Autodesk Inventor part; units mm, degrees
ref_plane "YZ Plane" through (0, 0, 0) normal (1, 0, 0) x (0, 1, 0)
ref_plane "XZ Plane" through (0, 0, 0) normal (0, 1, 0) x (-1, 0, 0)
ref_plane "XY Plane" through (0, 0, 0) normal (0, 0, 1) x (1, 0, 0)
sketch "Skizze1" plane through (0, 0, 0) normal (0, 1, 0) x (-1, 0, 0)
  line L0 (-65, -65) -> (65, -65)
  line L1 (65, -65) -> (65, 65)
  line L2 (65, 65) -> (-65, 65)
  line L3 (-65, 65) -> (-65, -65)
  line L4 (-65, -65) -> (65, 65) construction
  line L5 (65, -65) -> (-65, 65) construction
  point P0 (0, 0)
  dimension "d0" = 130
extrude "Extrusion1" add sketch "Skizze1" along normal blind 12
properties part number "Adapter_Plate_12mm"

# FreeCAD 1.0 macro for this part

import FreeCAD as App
import Part
import Sketcher
from FreeCAD import Vector
Q = App.Units.Quantity


def add_polygon(sketch, points):
    """Adds a closed chain of lines whose ends are joined by coincident constraints."""
    first, n = sketch.GeometryCount, len(points)
    for a, b in zip(points, points[1:] + points[:1]):
        sketch.addGeometry(Part.LineSegment(App.Vector(*a, 0), App.Vector(*b, 0)), False)
    for i in range(n):
        sketch.addConstraint(Sketcher.Constraint("Coincident", first + i, 2, first + (i + 1) % n, 1))

doc = App.newDocument("Part")
params = doc.addObject("Spreadsheet::Sheet", "Params")
for row, (alias, value) in enumerate([
    ("sketch1_width", "130 mm"),
    ("pad1_length", "12 mm"),
], start=1):
    params.set(f"A{row}", alias)
    params.set(f"B{row}", "=" + value)
    params.setAlias(f"B{row}", alias)

body = doc.addObject("PartDesign::Body", "Body")

# Sketch on XZ plane
sketch1 = body.newObject("Sketcher::SketchObject", "Sketch")
sketch1.AttachmentSupport = (doc.getObject("XZ_Plane"), [""])
sketch1.MapMode = "FlatFace"
add_polygon(sketch1, [(65, 65), (65, -65), (-65, -65), (-65, 65)])  # lines 0-3
sketch1.addConstraint(Sketcher.Constraint("Vertical", 0))
sketch1.addConstraint(Sketcher.Constraint("Horizontal", 1))
sketch1.addConstraint(Sketcher.Constraint("Vertical", 2))
sketch1.addConstraint(Sketcher.Constraint("Horizontal", 3))
sketch1.addConstraint(Sketcher.Constraint("Symmetric", 0, 2, 2, 2, -1, 1))
sketch1.addConstraint(Sketcher.Constraint("Equal", 3, 0))
sketch1.addConstraint(Sketcher.Constraint("DistanceX", 1, 2, 1, 1, Q("130 mm")))
sketch1.setExpression("Constraints[10]", "Params.sketch1_width")
pad1 = body.newObject("PartDesign::Pad", "Pad")
pad1.Profile = sketch1
pad1.setExpression("Length", "Params.pad1_length")
pad1.Reversed = True

doc.recompute()
